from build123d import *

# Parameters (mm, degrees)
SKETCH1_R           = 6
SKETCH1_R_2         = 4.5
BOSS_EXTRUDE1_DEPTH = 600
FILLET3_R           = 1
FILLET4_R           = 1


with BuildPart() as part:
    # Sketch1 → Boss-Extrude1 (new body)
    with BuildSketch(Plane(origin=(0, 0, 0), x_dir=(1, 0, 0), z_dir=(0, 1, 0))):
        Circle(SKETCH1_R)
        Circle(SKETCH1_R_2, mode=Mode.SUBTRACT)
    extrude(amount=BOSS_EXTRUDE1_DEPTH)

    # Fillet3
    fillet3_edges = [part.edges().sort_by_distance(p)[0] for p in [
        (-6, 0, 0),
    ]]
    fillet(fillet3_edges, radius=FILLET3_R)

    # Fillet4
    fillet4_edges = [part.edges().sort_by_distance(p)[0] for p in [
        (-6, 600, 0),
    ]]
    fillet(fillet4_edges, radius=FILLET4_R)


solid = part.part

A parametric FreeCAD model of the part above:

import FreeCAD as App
import Part
import Sketcher

V = App.Vector


def edges_at(feature, points):
    """Names of the edges that pass closest to the given points."""
    edges = feature.Shape.Edges
    near = lambda p: min(range(len(edges)), key=lambda i: edges[i].distToShape(Part.Vertex(*p))[0])
    return sorted({f"Edge{near(p) + 1}" for p in points})

doc = App.newDocument("Part")
body = doc.addObject("PartDesign::Body", "Body")

sketch1 = doc.addObject("Sketcher::SketchObject", "Sketch")
body.addObject(sketch1)
sketch1.AttachmentSupport = (doc.XZ_Plane, [""])
sketch1.MapMode = "FlatFace"
sketch1.addGeometry(Part.Circle(V(0, 0, 0), V(0, 0, 1), 6), False)
sketch1.addGeometry(Part.Circle(V(0, 0, 0), V(0, 0, 1), 4.5), False)
sketch1.addConstraint(Sketcher.Constraint("Coincident", 0, 3, -1, 1))
sketch1.addConstraint(Sketcher.Constraint("Coincident", 1, 3, -1, 1))
sketch1.addConstraint(Sketcher.Constraint("Diameter", 0, 12.0))
sketch1.addConstraint(Sketcher.Constraint("Diameter", 1, 9.0))
pad1 = doc.addObject("PartDesign::Pad", "Pad")
body.addObject(pad1)
pad1.Profile = sketch1
pad1.Length = 600
pad1.Reversed = True
doc.recompute()

fillet = doc.addObject("PartDesign::Fillet", "Fillet")
body.addObject(fillet)
fillet.Base = (pad1, edges_at(pad1, [(-6, 0, 0)]))
fillet.Radius = 1
doc.recompute()

fillet2 = doc.addObject("PartDesign::Fillet", "Fillet001")
body.addObject(fillet2)
fillet2.Base = (fillet, edges_at(fillet, [(-6, 600, 0)]))
fillet2.Radius = 1

doc.recompute()
